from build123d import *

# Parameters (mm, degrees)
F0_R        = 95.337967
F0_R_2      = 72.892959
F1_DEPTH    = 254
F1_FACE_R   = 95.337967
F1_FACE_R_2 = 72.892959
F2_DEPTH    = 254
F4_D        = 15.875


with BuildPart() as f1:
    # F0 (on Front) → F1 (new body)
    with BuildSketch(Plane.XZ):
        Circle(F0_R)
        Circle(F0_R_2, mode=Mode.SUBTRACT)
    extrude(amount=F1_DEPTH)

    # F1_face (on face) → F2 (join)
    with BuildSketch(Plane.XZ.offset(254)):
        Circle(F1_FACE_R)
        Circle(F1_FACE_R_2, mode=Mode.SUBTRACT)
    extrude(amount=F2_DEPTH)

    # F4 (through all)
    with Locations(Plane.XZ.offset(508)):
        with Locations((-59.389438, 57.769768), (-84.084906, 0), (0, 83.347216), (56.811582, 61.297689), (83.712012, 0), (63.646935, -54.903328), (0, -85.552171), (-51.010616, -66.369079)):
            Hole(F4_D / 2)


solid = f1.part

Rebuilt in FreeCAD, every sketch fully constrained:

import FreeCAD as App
import Part
import Sketcher
Q = App.Units.Quantity

doc = App.newDocument("Part")
body = doc.addObject("PartDesign::Body", "Body")

sketch1 = body.newObject("Sketcher::SketchObject", "Sketch")
sketch1.AttachmentSupport = (doc.getObject("XZ_Plane"), [""])
sketch1.MapMode = "FlatFace"
sketch1.addGeometry([
    Part.Circle(App.Vector(0, 0, 0), App.Vector(0, 0, 1), 95),
    Part.Circle(App.Vector(0, 0, 0), App.Vector(0, 0, 1), 73),
], False)
sketch1.addConstraint([
    Sketcher.Constraint("Coincident", 0, 3, -1, 1),
    Sketcher.Constraint("Coincident", 1, 3, -1, 1),
    Sketcher.Constraint("Diameter", 1, 145.785918),
    Sketcher.Constraint("Diameter", 0, 190.675934),
])
pad1 = body.newObject("PartDesign::Pad", "Pad")
pad1.Profile = sketch1
pad1.Length = Q("10 in")

sketch2 = body.newObject("Sketcher::SketchObject", "Sketch001")
sketch2.AttachmentSupport = (doc.getObject("XZ_Plane"), [""])
sketch2.MapMode = "FlatFace"
sketch2.AttachmentOffset = App.Placement(App.Vector(0, 0, 10 * 25.4), App.Rotation())
sketch2.addGeometry([
    Part.Circle(App.Vector(0, 0, 0), App.Vector(0, 0, 1), 95),
    Part.Circle(App.Vector(0, 0, 0), App.Vector(0, 0, 1), 73),
], False)
sketch2.addConstraint([
    Sketcher.Constraint("Coincident", 0, 3, -1, 1),
    Sketcher.Constraint("Coincident", 1, 3, -1, 1),
    Sketcher.Constraint("Diameter", 1, 145.785918),
    Sketcher.Constraint("Diameter", 0, 190.675934),
])
pad2 = body.newObject("PartDesign::Pad", "Pad001")
pad2.Profile = sketch2
pad2.Length = Q("10 in")

sketch3 = body.newObject("Sketcher::SketchObject", "Sketch002")
sketch3.AttachmentSupport = (doc.getObject("XZ_Plane"), [""])
sketch3.MapMode = "FlatFace"
sketch3.AttachmentOffset = App.Placement(App.Vector(0, 0, 20 * 25.4), App.Rotation())
sketch3.addGeometry([
    Part.Circle(App.Vector(-59, 58, 0), App.Vector(0, 0, 1), 8),
    Part.Circle(App.Vector(-84, 0, 0), App.Vector(0, 0, 1), 8),
    Part.Circle(App.Vector(0, 83, 0), App.Vector(0, 0, 1), 8),
    Part.Circle(App.Vector(57, 61, 0), App.Vector(0, 0, 1), 8),
    Part.Circle(App.Vector(84, 0, 0), App.Vector(0, 0, 1), 8),
    Part.Circle(App.Vector(64, -55, 0), App.Vector(0, 0, 1), 8),
    Part.Circle(App.Vector(0, -86, 0), App.Vector(0, 0, 1), 8),
    Part.Circle(App.Vector(-51, -66, 0), App.Vector(0, 0, 1), 8),
], False)
sketch3.addConstraint([
    Sketcher.Constraint("Equal", 0, 1),
    Sketcher.Constraint("Equal", 1, 2),
    Sketcher.Constraint("Equal", 2, 3),
    Sketcher.Constraint("Equal", 3, 4),
    Sketcher.Constraint("Equal", 4, 5),
    Sketcher.Constraint("Equal", 5, 6),
    Sketcher.Constraint("Equal", 6, 7),
    Sketcher.Constraint("PointOnObject", 1, 3, -1),
    Sketcher.Constraint("PointOnObject", 2, 3, -2),
    Sketcher.Constraint("PointOnObject", 4, 3, -1),
    Sketcher.Constraint("PointOnObject", 6, 3, -2),
    Sketcher.Constraint("Diameter", 0, Q("0.625 in")),
    Sketcher.Constraint("DistanceY", -1, 1, 3, 3, 61.297689),
    Sketcher.Constraint("DistanceX", -1, 1, 4, 3, 83.712012),
    Sketcher.Constraint("DistanceY", 5, 3, -1, 1, 54.903328),
    Sketcher.Constraint("DistanceY", 6, 3, -1, 1, 85.552171),
    Sketcher.Constraint("DistanceY", 7, 3, -1, 1, 66.369079),
    Sketcher.Constraint("DistanceX", 1, 3, 0, 3, 24.695468),
    Sketcher.Constraint("DistanceY", 0, 3, 2, 3, 25.577448),
    Sketcher.Constraint("DistanceX", 0, 3, 3, 3, 116.20102),
    Sketcher.Constraint("DistanceY", 0, 3, 3, 3, 3.527921),
    Sketcher.Constraint("DistanceX", 3, 3, 4, 3, 26.90043),
    Sketcher.Constraint("DistanceX", 1, 3, 5, 3, 147.731841),
    Sketcher.Constraint("DistanceX", 1, 3, 7, 3, 33.07429),
])
doc.recompute()
hole = body.newObject("PartDesign::Hole", "Hole")
hole.Profile = sketch3
hole.ThreadType = "None"
hole.Diameter = Q("0.625 in")
hole.DepthType = "ThroughAll"

doc.recompute()
